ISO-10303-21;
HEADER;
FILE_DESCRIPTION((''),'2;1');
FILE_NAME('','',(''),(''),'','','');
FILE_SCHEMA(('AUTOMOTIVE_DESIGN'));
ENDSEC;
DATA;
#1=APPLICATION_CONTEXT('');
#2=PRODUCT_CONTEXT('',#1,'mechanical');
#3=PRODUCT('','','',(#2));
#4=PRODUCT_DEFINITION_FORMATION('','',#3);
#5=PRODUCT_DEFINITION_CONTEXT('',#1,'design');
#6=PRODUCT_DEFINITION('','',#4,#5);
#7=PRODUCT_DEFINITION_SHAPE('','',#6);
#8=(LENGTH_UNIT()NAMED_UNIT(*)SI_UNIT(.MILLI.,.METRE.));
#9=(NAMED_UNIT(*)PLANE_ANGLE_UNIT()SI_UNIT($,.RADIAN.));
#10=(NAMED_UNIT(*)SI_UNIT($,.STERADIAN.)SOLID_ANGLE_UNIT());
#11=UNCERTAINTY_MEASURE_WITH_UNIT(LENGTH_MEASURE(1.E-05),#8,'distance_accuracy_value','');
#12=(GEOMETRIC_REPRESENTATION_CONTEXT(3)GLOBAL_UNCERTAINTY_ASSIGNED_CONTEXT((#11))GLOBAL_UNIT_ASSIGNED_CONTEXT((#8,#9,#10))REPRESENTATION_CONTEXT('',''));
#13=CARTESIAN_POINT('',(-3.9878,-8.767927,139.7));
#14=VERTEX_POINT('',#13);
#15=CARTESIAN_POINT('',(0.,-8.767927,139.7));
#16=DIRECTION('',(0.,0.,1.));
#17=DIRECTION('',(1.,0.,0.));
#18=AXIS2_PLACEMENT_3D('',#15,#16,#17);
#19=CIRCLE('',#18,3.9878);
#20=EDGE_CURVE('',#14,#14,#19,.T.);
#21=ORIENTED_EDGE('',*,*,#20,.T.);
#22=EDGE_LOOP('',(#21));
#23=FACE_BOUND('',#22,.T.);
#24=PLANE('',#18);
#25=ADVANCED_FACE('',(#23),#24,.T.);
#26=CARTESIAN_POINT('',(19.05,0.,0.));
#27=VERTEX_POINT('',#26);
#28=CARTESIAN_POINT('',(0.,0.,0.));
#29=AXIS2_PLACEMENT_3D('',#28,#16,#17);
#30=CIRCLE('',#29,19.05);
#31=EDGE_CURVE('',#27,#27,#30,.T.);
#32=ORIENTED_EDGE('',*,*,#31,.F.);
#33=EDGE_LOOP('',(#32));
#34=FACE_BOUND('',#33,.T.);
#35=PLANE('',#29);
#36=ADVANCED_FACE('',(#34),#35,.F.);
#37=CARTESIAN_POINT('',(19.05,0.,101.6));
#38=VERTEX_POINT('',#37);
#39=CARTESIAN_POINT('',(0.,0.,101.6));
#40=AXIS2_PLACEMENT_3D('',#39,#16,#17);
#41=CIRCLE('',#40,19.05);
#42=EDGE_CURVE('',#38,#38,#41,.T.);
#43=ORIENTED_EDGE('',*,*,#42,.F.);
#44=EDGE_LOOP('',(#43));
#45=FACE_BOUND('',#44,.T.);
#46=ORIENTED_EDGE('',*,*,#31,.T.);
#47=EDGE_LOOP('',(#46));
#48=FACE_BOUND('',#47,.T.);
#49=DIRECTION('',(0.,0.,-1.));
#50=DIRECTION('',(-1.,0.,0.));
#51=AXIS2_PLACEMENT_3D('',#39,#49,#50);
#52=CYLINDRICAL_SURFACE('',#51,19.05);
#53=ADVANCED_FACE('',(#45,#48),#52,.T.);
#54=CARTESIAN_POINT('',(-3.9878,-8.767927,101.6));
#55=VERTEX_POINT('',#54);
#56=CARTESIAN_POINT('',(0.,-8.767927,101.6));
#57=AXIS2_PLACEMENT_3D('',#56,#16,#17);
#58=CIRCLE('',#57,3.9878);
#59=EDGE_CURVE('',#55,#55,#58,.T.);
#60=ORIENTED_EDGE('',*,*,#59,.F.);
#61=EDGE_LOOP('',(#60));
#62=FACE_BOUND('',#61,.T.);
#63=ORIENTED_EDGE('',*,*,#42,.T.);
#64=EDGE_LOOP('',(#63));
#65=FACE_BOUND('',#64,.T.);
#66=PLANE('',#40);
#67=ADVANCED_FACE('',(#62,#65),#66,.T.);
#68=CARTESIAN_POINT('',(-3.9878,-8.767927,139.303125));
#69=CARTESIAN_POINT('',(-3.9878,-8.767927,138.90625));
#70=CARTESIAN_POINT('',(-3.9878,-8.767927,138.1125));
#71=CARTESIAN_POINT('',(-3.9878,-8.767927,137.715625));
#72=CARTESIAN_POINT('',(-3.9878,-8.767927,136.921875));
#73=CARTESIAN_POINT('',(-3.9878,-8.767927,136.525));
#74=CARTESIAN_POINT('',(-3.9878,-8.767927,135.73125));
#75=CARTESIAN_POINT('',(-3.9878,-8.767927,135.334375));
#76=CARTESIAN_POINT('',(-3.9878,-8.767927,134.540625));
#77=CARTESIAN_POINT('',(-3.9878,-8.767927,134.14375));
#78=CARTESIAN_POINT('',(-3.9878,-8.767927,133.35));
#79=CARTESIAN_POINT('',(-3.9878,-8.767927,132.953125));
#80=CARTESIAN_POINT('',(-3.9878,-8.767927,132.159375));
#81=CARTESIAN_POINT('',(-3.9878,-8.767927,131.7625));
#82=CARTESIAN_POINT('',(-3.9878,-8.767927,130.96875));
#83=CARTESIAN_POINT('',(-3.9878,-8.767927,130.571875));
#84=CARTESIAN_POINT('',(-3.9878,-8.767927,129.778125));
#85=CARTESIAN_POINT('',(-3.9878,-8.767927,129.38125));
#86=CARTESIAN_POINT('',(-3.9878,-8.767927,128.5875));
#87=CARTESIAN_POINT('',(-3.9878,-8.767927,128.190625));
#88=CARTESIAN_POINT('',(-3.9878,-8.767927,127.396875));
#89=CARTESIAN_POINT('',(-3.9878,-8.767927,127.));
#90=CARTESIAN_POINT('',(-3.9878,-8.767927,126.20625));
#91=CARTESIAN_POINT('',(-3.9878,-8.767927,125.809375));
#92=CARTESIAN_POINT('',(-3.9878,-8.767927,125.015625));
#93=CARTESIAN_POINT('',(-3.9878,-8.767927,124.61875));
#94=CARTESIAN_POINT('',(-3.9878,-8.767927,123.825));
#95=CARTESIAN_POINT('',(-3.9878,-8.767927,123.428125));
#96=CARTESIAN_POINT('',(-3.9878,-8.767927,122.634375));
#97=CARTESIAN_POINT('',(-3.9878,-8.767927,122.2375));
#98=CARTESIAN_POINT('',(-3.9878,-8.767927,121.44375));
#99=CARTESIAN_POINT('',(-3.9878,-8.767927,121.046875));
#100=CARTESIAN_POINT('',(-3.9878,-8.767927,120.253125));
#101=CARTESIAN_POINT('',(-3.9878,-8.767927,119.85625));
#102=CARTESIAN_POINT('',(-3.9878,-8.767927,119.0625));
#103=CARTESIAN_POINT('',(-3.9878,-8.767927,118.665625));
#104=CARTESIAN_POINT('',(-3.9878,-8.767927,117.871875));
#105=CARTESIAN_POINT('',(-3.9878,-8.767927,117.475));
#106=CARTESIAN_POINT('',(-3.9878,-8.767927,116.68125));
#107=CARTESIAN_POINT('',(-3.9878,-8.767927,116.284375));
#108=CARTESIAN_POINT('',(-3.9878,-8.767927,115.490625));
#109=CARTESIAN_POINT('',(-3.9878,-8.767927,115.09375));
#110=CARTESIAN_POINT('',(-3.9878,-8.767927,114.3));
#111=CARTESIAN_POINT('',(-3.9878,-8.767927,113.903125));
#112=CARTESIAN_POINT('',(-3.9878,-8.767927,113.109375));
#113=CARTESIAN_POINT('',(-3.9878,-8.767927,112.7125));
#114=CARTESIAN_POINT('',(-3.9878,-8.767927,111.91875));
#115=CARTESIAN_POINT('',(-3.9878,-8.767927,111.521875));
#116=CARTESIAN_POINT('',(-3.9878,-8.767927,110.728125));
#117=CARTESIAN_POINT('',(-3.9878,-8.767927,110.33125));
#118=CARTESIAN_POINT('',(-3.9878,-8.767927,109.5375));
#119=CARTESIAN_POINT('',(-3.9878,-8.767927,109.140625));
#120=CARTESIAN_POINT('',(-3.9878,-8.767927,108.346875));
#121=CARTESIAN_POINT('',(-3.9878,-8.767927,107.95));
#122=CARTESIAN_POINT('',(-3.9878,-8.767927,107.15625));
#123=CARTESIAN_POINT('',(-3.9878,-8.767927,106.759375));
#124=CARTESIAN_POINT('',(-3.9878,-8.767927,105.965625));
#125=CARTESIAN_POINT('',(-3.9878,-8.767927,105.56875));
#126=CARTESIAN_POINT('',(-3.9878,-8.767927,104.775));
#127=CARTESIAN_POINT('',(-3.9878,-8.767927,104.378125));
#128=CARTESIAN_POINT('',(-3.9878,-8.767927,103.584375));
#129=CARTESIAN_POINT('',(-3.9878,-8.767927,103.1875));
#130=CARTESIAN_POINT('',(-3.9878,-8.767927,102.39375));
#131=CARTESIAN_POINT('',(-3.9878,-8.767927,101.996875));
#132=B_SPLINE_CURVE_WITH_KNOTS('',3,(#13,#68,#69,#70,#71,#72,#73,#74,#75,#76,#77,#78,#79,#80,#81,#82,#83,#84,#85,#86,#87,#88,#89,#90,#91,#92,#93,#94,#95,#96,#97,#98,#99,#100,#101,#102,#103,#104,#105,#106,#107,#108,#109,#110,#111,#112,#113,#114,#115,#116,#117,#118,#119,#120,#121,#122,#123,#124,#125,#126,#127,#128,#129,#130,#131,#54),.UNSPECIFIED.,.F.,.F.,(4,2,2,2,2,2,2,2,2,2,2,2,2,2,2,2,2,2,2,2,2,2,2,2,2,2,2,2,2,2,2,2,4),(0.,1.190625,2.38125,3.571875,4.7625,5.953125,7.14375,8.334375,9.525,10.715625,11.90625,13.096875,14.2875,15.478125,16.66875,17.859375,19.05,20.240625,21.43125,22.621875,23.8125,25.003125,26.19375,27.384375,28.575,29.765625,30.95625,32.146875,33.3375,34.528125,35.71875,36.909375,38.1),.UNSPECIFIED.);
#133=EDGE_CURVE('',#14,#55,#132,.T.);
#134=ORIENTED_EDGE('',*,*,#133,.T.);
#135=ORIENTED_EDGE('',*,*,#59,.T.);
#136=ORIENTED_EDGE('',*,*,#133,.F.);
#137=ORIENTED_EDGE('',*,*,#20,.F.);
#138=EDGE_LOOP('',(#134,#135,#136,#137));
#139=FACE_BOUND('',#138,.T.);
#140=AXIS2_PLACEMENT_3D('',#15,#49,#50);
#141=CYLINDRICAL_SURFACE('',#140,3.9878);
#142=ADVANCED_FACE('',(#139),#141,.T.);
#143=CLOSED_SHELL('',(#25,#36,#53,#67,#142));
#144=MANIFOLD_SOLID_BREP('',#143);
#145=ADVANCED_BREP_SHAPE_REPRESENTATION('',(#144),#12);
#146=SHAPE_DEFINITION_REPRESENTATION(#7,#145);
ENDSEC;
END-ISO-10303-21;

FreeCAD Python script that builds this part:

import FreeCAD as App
import Part
import Sketcher
from FreeCAD import Vector
Q = App.Units.Quantity

doc = App.newDocument("Part")
body = doc.addObject("PartDesign::Body", "Body")

# Sketch on XY plane
sketch1 = doc.addObject("Sketcher::SketchObject", "Sketch")
body.addObject(sketch1)
sketch1.AttachmentSupport = (doc.XY_Plane, [""])
sketch1.MapMode = "FlatFace"
sketch1.addGeometry(Part.Circle(Vector(0, 0, 0), Vector(0, 0, 1), 19.05), False)
sketch1.addConstraint(Sketcher.Constraint("Coincident", 0, 3, -1, 1))
sketch1.addConstraint(Sketcher.Constraint("Diameter", 0, Q("1.5 in")))
pad1 = doc.addObject("PartDesign::Pad", "Pad")
body.addObject(pad1)
pad1.Profile = sketch1
pad1.Length = Q("4 in")

# Sketch on XY plane
sketch2 = doc.addObject("Sketcher::SketchObject", "Sketch001")
body.addObject(sketch2)
sketch2.AttachmentSupport = (doc.XY_Plane, [""])
sketch2.MapMode = "FlatFace"
sketch2.AttachmentOffset = App.Placement(Vector(0, 0, 4 * 25.4), App.Rotation())
sketch2.addGeometry(Part.Circle(Vector(0, -8.767927, 0), Vector(0, 0, 1), 3.9878), False)
sketch2.addConstraint(Sketcher.Constraint("PointOnObject", 0, 3, -2))
sketch2.addConstraint(Sketcher.Constraint("Diameter", 0, Q("0.314 in")))
sketch2.addConstraint(Sketcher.Constraint("DistanceY", 0, 3, -1, 1, Q("8.767927 mm")))
pad2 = doc.addObject("PartDesign::Pad", "Pad001")
body.addObject(pad2)
pad2.Profile = sketch2
pad2.Length = Q("1.5 in")

doc.recompute()
